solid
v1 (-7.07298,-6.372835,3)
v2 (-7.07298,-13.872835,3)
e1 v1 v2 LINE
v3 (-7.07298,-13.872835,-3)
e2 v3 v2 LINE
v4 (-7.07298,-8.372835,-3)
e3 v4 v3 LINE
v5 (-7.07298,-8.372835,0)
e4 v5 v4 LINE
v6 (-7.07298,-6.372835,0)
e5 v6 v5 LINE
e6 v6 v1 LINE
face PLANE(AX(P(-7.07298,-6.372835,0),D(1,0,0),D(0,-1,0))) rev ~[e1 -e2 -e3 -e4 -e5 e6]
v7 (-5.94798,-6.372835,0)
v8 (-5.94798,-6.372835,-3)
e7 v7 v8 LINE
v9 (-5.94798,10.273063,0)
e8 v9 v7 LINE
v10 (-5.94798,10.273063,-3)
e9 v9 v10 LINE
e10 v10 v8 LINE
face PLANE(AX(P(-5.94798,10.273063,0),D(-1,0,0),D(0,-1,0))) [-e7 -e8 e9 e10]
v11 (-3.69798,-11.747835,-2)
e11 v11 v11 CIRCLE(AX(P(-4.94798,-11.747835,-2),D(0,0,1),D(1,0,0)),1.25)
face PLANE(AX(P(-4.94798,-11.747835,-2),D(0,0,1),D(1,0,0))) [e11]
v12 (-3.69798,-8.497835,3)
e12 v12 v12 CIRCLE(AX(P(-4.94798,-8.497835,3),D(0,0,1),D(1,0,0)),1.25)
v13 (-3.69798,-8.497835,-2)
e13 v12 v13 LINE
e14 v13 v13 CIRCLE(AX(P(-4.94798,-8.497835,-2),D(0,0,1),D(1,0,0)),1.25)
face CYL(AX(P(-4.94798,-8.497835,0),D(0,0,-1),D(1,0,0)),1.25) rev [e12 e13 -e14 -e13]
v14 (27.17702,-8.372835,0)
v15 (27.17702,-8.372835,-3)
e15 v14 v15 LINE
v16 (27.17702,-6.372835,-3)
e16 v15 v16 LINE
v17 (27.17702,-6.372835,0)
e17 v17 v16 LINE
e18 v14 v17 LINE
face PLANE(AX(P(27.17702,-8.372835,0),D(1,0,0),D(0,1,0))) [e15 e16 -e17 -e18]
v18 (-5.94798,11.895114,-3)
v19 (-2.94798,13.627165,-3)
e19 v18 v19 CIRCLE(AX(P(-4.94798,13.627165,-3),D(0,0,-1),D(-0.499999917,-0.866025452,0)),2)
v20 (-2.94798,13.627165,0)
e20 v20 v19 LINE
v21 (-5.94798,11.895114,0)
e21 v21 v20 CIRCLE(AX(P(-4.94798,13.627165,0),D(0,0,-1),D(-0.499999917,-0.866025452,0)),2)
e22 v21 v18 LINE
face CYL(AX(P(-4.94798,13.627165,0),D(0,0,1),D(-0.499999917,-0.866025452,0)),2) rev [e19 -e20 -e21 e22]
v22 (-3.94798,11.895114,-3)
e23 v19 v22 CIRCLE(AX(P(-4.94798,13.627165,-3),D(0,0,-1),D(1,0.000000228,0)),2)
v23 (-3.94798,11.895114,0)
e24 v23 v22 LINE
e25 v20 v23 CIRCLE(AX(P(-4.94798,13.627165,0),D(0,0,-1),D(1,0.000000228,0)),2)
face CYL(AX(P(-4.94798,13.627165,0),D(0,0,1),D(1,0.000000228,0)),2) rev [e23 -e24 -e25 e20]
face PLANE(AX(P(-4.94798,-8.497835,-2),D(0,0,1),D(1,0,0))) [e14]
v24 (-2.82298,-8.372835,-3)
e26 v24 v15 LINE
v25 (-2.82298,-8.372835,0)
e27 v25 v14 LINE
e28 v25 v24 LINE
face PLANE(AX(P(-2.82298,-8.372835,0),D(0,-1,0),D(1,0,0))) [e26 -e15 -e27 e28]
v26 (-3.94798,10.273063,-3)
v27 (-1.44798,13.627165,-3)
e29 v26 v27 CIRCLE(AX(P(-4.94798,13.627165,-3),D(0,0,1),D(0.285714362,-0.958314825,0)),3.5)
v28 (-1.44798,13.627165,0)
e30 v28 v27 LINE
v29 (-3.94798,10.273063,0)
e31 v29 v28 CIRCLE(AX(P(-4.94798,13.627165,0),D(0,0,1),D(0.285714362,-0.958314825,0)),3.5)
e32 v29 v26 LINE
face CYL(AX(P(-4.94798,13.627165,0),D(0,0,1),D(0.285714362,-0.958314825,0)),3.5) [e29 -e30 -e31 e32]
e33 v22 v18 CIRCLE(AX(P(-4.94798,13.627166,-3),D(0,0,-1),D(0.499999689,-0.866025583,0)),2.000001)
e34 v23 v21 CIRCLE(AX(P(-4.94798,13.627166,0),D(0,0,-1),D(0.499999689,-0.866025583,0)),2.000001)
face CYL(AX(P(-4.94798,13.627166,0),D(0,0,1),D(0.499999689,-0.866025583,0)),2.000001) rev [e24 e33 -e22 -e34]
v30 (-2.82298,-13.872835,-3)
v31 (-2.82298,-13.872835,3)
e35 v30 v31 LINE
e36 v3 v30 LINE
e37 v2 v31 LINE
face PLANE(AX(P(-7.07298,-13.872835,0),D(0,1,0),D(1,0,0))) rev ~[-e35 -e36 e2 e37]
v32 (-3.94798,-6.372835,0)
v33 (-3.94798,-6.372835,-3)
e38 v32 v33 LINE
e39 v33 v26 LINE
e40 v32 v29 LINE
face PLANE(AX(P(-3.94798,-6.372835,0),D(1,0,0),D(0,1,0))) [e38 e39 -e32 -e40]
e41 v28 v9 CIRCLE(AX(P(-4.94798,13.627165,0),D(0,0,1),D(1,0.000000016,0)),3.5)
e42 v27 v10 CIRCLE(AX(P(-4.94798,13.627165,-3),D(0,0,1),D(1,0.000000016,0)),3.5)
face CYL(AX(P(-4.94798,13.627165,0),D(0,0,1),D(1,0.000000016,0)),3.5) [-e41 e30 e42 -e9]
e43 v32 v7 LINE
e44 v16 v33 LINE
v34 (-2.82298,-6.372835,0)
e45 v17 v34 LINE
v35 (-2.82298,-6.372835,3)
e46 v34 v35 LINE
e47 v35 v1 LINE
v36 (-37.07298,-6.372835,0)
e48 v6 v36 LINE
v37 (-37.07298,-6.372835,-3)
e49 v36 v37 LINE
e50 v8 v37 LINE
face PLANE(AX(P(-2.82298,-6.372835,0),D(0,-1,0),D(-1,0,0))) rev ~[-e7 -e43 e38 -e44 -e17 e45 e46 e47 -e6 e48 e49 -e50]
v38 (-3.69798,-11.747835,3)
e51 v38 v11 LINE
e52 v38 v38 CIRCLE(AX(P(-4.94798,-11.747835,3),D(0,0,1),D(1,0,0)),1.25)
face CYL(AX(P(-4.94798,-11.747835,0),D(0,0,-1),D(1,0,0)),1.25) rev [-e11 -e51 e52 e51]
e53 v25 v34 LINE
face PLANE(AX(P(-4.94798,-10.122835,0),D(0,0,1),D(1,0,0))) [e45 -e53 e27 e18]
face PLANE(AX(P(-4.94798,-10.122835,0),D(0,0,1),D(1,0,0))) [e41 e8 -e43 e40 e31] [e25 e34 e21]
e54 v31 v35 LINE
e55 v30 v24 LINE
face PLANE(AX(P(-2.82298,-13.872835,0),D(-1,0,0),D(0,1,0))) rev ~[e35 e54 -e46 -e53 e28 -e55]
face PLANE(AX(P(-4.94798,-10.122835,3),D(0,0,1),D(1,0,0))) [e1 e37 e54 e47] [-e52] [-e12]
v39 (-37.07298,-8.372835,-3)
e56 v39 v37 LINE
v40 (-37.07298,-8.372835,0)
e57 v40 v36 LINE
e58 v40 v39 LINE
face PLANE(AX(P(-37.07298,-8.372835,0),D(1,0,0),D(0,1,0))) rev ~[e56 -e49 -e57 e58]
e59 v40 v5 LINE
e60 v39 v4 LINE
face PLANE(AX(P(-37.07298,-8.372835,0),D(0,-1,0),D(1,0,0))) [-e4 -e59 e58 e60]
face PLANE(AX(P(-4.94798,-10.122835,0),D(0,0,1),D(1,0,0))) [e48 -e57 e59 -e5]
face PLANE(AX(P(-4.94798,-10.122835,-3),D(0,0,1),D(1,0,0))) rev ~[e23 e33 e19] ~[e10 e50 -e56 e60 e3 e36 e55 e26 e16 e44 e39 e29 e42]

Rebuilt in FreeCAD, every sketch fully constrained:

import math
import FreeCAD as App
import Part
import Sketcher
Q = App.Units.Quantity


def add_polygon(sketch, points):
    """Adds a closed chain of lines whose ends are joined by coincident constraints."""
    first, n = sketch.GeometryCount, len(points)
    for a, b in zip(points, points[1:] + points[:1]):
        sketch.addGeometry(Part.LineSegment(App.Vector(*a, 0), App.Vector(*b, 0)), False)
    for i in range(n):
        sketch.addConstraint(Sketcher.Constraint("Coincident", first + i, 2, first + (i + 1) % n, 1))

doc = App.newDocument("Part")
body = doc.addObject("PartDesign::Body", "Body")

# Sketch on XY plane
sketch1 = body.newObject("Sketcher::SketchObject", "Sketch")
sketch1.AttachmentSupport = (doc.getObject("XY_Plane"), [""])
sketch1.MapMode = "FlatFace"
sketch1.addGeometry(Part.LineSegment(App.Vector(-7.07298, -8.372835, 0), App.Vector(-7.07298, -13.872835, 0)), False)
sketch1.addGeometry(Part.LineSegment(App.Vector(-7.07298, -13.872835, 0), App.Vector(-2.82298, -13.872835, 0)), False)
sketch1.addGeometry(Part.LineSegment(App.Vector(-2.82298, -13.872835, 0), App.Vector(-2.82298, -8.372835, 0)), False)
sketch1.addGeometry(Part.LineSegment(App.Vector(-2.82298, -8.372835, 0), App.Vector(27.17702, -8.372835, 0)), False)
sketch1.addGeometry(Part.LineSegment(App.Vector(27.17702, -8.372835, 0), App.Vector(27.17702, -6.372835, 0)), False)
sketch1.addGeometry(Part.LineSegment(App.Vector(27.17702, -6.372835, 0), App.Vector(-3.94798, -6.372835, 0)), False)
sketch1.addGeometry(Part.LineSegment(App.Vector(-3.94798, -6.372835, 0), App.Vector(-3.94798, 10.273063, 0)), False)
sketch1.addGeometry(Part.ArcOfCircle(Part.Circle(App.Vector(-4.94798, 13.627165, 0), App.Vector(0, 0, 1), 3.5), math.radians(-73.398446), math.radians(-0.000004)), False)
sketch1.addGeometry(Part.ArcOfCircle(Part.Circle(App.Vector(-4.94798, 13.627165, 0), App.Vector(0, 0, 1), 3.5), math.radians(0.000001), math.radians(253.39845)), False)
sketch1.addGeometry(Part.LineSegment(App.Vector(-5.94798, 10.273063, 0), App.Vector(-5.94798, -6.372835, 0)), False)
sketch1.addGeometry(Part.LineSegment(App.Vector(-5.94798, -6.372835, 0), App.Vector(-37.07298, -6.372835, 0)), False)
sketch1.addGeometry(Part.LineSegment(App.Vector(-37.07298, -6.372835, 0), App.Vector(-37.07298, -8.372835, 0)), False)
sketch1.addGeometry(Part.LineSegment(App.Vector(-37.07298, -8.372835, 0), App.Vector(-7.07298, -8.372835, 0)), False)
sketch1.addGeometry(Part.ArcOfCircle(Part.Circle(App.Vector(-4.94798, 13.627166, 0), App.Vector(0, 0, 1), 2.000001), math.radians(-119.999979), math.radians(-60.000021)), False)
sketch1.addGeometry(Part.ArcOfCircle(Part.Circle(App.Vector(-4.94798, 13.627165, 0), App.Vector(0, 0, 1), 2), math.radians(0), math.radians(240.000006)), False)
sketch1.addGeometry(Part.ArcOfCircle(Part.Circle(App.Vector(-4.94798, 13.627165, 0), App.Vector(0, 0, 1), 2), math.radians(-60.000008), math.radians(0.000013)), False)
sketch1.addConstraint(Sketcher.Constraint("Coincident", 0, 2, 1, 1))
sketch1.addConstraint(Sketcher.Constraint("Coincident", 1, 2, 2, 1))
sketch1.addConstraint(Sketcher.Constraint("Coincident", 2, 2, 3, 1))
sketch1.addConstraint(Sketcher.Constraint("Coincident", 3, 2, 4, 1))
sketch1.addConstraint(Sketcher.Constraint("Coincident", 4, 2, 5, 1))
sketch1.addConstraint(Sketcher.Constraint("Coincident", 5, 2, 6, 1))
sketch1.addConstraint(Sketcher.Constraint("Coincident", 6, 2, 7, 1))
sketch1.addConstraint(Sketcher.Constraint("Tangent", 7, 2, 8, 1))
sketch1.addConstraint(Sketcher.Constraint("Coincident", 8, 2, 9, 1))
sketch1.addConstraint(Sketcher.Constraint("Coincident", 9, 2, 10, 1))
sketch1.addConstraint(Sketcher.Constraint("Coincident", 10, 2, 11, 1))
sketch1.addConstraint(Sketcher.Constraint("Coincident", 11, 2, 12, 1))
sketch1.addConstraint(Sketcher.Constraint("Coincident", 12, 2, 0, 1))
sketch1.addConstraint(Sketcher.Constraint("Tangent", 13, 1, 14, 2))
sketch1.addConstraint(Sketcher.Constraint("Tangent", 14, 1, 15, 2))
sketch1.addConstraint(Sketcher.Constraint("Tangent", 15, 1, 13, 2))
sketch1.addConstraint(Sketcher.Constraint("Vertical", 0))
sketch1.addConstraint(Sketcher.Constraint("Horizontal", 1))
sketch1.addConstraint(Sketcher.Constraint("Vertical", 2))
sketch1.addConstraint(Sketcher.Constraint("Horizontal", 3))
sketch1.addConstraint(Sketcher.Constraint("Vertical", 4))
sketch1.addConstraint(Sketcher.Constraint("Horizontal", 5))
sketch1.addConstraint(Sketcher.Constraint("Vertical", 6))
sketch1.addConstraint(Sketcher.Constraint("Vertical", 9))
sketch1.addConstraint(Sketcher.Constraint("Horizontal", 10))
sketch1.addConstraint(Sketcher.Constraint("Vertical", 11))
sketch1.addConstraint(Sketcher.Constraint("Horizontal", 12))
sketch1.addConstraint(Sketcher.Constraint("Coincident", 13, 3, 7, 3))
sketch1.addConstraint(Sketcher.Constraint("Equal", 7, 8))
sketch1.addConstraint(Sketcher.Constraint("Horizontal", 15, 3, 7, 2))
sketch1.addConstraint(Sketcher.Constraint("Horizontal", 6, 2, 8, 2))
sketch1.addConstraint(Sketcher.Constraint("Horizontal", 5, 2, 9, 2))
sketch1.addConstraint(Sketcher.Constraint("Horizontal", 3, 2, 11, 2))
sketch1.addConstraint(Sketcher.Constraint("Horizontal", 7, 2, 14, 1))
sketch1.addConstraint(Sketcher.Constraint("Horizontal", 13, 1, 15, 1))
sketch1.addConstraint(Sketcher.Constraint("Vertical", 9, 2, 13, 1))
sketch1.addConstraint(Sketcher.Constraint("Equal", 5, 10))
sketch1.addConstraint(Sketcher.Constraint("Equal", 3, 12))
sketch1.addConstraint(Sketcher.Constraint("Radius", 13, Q("2.000001 mm")))
sketch1.addConstraint(Sketcher.Constraint("Radius", 7, Q("3.5 mm")))
sketch1.addConstraint(Sketcher.Constraint("DistanceX", 3, 1, 3, 2, Q("30 mm")))
sketch1.addConstraint(Sketcher.Constraint("DistanceY", 4, 1, 4, 2, Q("2 mm")))
sketch1.addConstraint(Sketcher.Constraint("DistanceY", 0, 2, 0, 1, Q("5.5 mm")))
sketch1.addConstraint(Sketcher.Constraint("DistanceY", 2, 2, 15, 3, Q("22 mm")))
sketch1.addConstraint(Sketcher.Constraint("DistanceX", 15, 3, 5, 2, Q("1 mm")))
sketch1.addConstraint(Sketcher.Constraint("DistanceX", 1, 1, 1, 2, Q("4.25 mm")))
sketch1.addConstraint(Sketcher.Constraint("DistanceX", 7, 3, -1, 1, Q("4.94798 mm")))
sketch1.addConstraint(Sketcher.Constraint("DistanceY", -1, 1, 7, 3, Q("13.627165 mm")))
pad1 = body.newObject("PartDesign::Pad", "Pad")
pad1.Profile = sketch1
pad1.Length = 3
pad1.Reversed = True

# Sketch on XY plane
sketch2 = body.newObject("Sketcher::SketchObject", "Sketch001")
sketch2.AttachmentSupport = (doc.getObject("XY_Plane"), [""])
sketch2.MapMode = "FlatFace"
add_polygon(sketch2, [(-7.07298, -6.372835), (-7.07298, -13.872835), (-2.82298, -13.872835), (-2.82298, -6.372835)])  # lines 0-3
sketch2.addGeometry(Part.Circle(App.Vector(-4.94798, -11.747835, 0), App.Vector(0, 0, 1), 1.25), False)  # 4
sketch2.addGeometry(Part.Circle(App.Vector(-4.94798, -8.497835, 0), App.Vector(0, 0, 1), 1.25), False)  # 5
sketch2.addConstraint(Sketcher.Constraint("Vertical", 0))
sketch2.addConstraint(Sketcher.Constraint("Horizontal", 1))
sketch2.addConstraint(Sketcher.Constraint("Vertical", 2))
sketch2.addConstraint(Sketcher.Constraint("Horizontal", 3))
sketch2.addConstraint(Sketcher.Constraint("Equal", 4, 5))
sketch2.addConstraint(Sketcher.Constraint("Vertical", 4, 3, 5, 3))
sketch2.addConstraint(Sketcher.Constraint("Diameter", 4, Q("2.5 mm")))
sketch2.addConstraint(Sketcher.Constraint("DistanceY", 0, 2, 0, 1, Q("7.5 mm")))
sketch2.addConstraint(Sketcher.Constraint("DistanceX", 1, 1, 1, 2, Q("4.25 mm")))
sketch2.addConstraint(Sketcher.Constraint("DistanceY", 4, 3, 5, 3, Q("3.25 mm")))
sketch2.addConstraint(Sketcher.Constraint("DistanceX", 0, 2, 4, 3, Q("2.125 mm")))
sketch2.addConstraint(Sketcher.Constraint("DistanceY", 0, 2, 4, 3, Q("2.125 mm")))
sketch2.addConstraint(Sketcher.Constraint("DistanceX", 4, 3, -1, 1, Q("4.94798 mm")))
sketch2.addConstraint(Sketcher.Constraint("DistanceY", 4, 3, -1, 1, Q("11.747835 mm")))
pad2 = body.newObject("PartDesign::Pad", "Pad001")
pad2.Profile = sketch2
pad2.Length = 3

# Sketch on XY plane
sketch3 = body.newObject("Sketcher::SketchObject", "Sketch002")
sketch3.AttachmentSupport = (doc.getObject("XY_Plane"), [""])
sketch3.MapMode = "FlatFace"
sketch3.addGeometry(Part.Circle(App.Vector(-4.94798, -8.497835, 0), App.Vector(0, 0, 1), 1.25), False)
sketch3.addGeometry(Part.Circle(App.Vector(-4.94798, -11.747835, 0), App.Vector(0, 0, 1), 1.25), False)
sketch3.addConstraint(Sketcher.Constraint("Equal", 0, 1))
sketch3.addConstraint(Sketcher.Constraint("Vertical", 0, 3, 1, 3))
sketch3.addConstraint(Sketcher.Constraint("Diameter", 0, Q("2.5 mm")))
sketch3.addConstraint(Sketcher.Constraint("DistanceY", 1, 3, 0, 3, Q("3.25 mm")))
sketch3.addConstraint(Sketcher.Constraint("DistanceX", 0, 3, -1, 1, Q("4.94798 mm")))
sketch3.addConstraint(Sketcher.Constraint("DistanceY", 0, 3, -1, 1, Q("8.497835 mm")))
pocket1 = body.newObject("PartDesign::Pocket", "Pocket")
pocket1.Profile = sketch3
pocket1.Length = 2

doc.recompute()
